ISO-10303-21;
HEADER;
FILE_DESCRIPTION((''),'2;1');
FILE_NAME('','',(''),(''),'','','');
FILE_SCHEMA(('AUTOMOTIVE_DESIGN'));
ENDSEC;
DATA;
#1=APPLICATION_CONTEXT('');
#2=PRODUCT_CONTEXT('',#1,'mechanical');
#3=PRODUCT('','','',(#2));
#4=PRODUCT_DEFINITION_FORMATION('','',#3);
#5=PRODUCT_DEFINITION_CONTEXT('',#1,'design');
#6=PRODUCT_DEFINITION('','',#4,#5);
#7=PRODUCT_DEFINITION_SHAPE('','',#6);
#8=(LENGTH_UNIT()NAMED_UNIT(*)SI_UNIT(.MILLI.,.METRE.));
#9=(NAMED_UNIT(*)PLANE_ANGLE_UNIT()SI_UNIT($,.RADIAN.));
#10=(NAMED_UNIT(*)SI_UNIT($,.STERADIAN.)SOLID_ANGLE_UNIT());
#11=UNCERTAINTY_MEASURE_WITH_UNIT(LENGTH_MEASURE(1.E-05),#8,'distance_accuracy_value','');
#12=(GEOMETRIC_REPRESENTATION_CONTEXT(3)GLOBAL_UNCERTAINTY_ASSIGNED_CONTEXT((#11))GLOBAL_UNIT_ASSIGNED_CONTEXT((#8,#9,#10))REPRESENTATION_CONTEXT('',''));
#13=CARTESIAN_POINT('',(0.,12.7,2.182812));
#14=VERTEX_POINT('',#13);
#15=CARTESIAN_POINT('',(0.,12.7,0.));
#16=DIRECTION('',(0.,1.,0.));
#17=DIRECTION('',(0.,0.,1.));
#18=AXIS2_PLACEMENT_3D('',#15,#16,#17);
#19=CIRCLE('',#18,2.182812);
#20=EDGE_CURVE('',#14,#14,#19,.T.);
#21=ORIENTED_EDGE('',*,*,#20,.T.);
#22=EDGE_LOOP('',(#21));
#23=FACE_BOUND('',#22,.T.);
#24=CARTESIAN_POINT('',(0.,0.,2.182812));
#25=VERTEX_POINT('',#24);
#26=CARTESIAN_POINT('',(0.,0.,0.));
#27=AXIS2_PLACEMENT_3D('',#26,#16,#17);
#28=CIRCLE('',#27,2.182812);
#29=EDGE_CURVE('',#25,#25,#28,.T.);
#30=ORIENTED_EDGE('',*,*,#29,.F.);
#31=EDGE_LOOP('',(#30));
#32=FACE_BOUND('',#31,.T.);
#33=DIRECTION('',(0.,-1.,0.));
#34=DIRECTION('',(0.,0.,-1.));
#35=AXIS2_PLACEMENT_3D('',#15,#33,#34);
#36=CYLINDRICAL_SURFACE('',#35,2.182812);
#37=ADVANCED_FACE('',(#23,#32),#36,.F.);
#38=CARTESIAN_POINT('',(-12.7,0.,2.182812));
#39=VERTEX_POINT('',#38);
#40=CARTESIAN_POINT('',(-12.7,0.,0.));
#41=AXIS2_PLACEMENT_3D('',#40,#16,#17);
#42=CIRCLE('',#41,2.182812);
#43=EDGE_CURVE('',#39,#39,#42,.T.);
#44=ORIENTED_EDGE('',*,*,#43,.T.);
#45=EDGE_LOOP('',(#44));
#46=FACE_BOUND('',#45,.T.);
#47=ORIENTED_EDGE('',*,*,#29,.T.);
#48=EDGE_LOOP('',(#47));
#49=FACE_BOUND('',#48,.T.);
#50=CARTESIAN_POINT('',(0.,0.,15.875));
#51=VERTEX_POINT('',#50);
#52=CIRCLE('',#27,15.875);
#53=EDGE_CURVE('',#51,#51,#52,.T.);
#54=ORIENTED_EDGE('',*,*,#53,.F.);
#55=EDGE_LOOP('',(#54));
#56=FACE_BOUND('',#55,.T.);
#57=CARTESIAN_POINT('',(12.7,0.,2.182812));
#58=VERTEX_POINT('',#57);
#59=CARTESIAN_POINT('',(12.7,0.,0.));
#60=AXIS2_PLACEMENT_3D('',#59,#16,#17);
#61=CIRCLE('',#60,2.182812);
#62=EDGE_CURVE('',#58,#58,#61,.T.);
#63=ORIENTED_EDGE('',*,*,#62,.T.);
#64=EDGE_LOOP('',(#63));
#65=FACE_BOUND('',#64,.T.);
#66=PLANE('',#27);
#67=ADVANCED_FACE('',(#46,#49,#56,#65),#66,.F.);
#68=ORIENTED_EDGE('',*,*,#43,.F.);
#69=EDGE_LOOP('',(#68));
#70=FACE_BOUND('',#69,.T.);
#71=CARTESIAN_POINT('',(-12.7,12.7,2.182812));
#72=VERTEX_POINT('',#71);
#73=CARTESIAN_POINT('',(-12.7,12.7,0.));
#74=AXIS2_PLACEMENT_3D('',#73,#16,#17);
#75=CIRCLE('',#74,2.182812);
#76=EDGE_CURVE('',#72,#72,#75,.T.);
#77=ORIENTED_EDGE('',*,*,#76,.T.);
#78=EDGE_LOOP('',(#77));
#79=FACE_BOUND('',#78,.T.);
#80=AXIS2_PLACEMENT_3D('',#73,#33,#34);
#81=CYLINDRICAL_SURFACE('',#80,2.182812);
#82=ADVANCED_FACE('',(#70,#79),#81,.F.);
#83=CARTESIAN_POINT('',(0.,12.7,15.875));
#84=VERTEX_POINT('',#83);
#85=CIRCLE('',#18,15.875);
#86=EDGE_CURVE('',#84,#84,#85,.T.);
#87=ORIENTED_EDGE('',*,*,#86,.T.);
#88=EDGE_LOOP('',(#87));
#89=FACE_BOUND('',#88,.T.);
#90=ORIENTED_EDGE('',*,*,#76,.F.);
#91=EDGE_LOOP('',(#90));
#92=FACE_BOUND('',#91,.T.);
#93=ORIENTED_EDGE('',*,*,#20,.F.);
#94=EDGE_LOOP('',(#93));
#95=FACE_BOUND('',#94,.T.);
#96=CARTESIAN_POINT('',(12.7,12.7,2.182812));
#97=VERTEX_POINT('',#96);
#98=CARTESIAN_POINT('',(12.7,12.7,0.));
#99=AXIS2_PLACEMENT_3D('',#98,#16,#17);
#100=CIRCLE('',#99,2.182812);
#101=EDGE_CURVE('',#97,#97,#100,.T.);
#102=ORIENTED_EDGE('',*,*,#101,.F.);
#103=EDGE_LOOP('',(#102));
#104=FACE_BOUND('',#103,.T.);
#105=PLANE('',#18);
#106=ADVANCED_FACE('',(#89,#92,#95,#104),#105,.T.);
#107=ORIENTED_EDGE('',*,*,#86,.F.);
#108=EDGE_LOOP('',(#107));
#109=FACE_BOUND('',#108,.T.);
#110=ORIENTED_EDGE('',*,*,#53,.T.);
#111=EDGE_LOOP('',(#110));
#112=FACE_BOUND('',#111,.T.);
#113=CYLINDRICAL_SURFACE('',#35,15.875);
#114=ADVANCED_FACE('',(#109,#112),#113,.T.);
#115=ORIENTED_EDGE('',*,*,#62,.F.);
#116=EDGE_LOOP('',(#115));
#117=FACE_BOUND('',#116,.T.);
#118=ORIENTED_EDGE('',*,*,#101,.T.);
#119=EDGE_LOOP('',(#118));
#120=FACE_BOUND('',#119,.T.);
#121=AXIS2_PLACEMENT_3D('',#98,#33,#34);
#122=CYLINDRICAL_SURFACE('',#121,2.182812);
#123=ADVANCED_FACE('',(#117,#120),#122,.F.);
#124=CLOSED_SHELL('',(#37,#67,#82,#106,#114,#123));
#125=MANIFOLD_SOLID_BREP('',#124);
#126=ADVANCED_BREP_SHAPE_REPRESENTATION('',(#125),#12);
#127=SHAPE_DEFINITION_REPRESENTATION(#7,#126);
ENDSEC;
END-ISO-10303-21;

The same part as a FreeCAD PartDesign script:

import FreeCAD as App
import Part
import Sketcher

V = App.Vector
Q = App.Units.Quantity

doc = App.newDocument("Part")
body = doc.addObject("PartDesign::Body", "Body")

# Sketch on XZ plane
sketch1 = body.newObject("Sketcher::SketchObject", "Sketch")
sketch1.AttachmentSupport = (doc.getObject("XZ_Plane"), [""])
sketch1.MapMode = "FlatFace"
sketch1.addGeometry(Part.Circle(V(0, 0, 0), V(0, 0, 1), 15.9), False)
sketch1.addGeometry(Part.Circle(V(-12.7, 0, 0), V(0, 0, 1), 2.2), False)
sketch1.addGeometry(Part.Circle(V(12.7, 0, 0), V(0, 0, 1), 2.2), False)
sketch1.addGeometry(Part.Circle(V(0, 0, 0), V(0, 0, 1), 2.2), False)
sketch1.addConstraint(Sketcher.Constraint("Coincident", 0, 3, -1, 1))
sketch1.addConstraint(Sketcher.Constraint("Coincident", 3, 3, -1, 1))
sketch1.addConstraint(Sketcher.Constraint("Equal", 1, 2))
sketch1.addConstraint(Sketcher.Constraint("Equal", 2, 3))
sketch1.addConstraint(Sketcher.Constraint("Symmetric", 1, 3, 2, 3, -1, 1))
sketch1.addConstraint(Sketcher.Constraint("PointOnObject", 1, 3, -1))
sketch1.addConstraint(Sketcher.Constraint("Diameter", 0, Q("1.25 in")))
sketch1.addConstraint(Sketcher.Constraint("Diameter", 1, Q("0.171875 in")))
sketch1.addConstraint(Sketcher.Constraint("DistanceX", 1, 3, 2, 3, Q("1 in")))
pad1 = body.newObject("PartDesign::Pad", "Pad")
pad1.Profile = sketch1
pad1.Length = Q("0.5 in")
pad1.Reversed = True

doc.recompute()
